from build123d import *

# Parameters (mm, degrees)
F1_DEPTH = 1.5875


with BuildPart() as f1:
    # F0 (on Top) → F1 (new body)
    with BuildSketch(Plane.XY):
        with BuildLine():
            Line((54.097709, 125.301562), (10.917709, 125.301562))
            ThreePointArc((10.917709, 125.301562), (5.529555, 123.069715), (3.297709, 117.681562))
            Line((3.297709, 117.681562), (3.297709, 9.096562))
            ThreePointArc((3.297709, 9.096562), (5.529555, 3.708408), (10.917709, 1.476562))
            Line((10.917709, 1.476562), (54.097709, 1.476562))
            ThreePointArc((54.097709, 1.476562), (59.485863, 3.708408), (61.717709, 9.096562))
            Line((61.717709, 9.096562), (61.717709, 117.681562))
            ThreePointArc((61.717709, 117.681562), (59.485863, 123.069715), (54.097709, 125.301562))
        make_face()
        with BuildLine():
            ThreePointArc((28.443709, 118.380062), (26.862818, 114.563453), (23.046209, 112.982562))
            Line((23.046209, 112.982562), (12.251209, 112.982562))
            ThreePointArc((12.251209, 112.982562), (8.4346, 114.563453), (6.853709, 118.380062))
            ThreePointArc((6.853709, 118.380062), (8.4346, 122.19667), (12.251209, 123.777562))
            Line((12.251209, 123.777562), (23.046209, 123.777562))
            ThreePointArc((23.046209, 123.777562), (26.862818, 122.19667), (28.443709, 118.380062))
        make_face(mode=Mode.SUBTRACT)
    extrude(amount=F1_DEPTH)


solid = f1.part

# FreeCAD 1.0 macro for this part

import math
import FreeCAD as App
import Part
import Sketcher
from FreeCAD import Vector
Q = App.Units.Quantity

doc = App.newDocument("Part")
body = doc.addObject("PartDesign::Body", "Body")

# Sketch on XY plane
sketch1 = doc.addObject("Sketcher::SketchObject", "Sketch")
body.addObject(sketch1)
sketch1.AttachmentSupport = (doc.XY_Plane, [""])
sketch1.MapMode = "FlatFace"
sketch1.addGeometry([
    Part.LineSegment(Vector(54, 125, 0), Vector(11, 125, 0)),  # 0
    Part.ArcOfCircle(Part.Circle(Vector(11, 118, 0), Vector(0, 0, 1), 8), math.radians(90), math.radians(180)),  # 1
    Part.LineSegment(Vector(3, 118, 0), Vector(3, 9, 0)),  # 2
    Part.ArcOfCircle(Part.Circle(Vector(11, 9, 0), Vector(0, 0, 1), 8), math.radians(180), math.radians(270)),  # 3
    Part.LineSegment(Vector(11, 1, 0), Vector(54, 1, 0)),  # 4
    Part.ArcOfCircle(Part.Circle(Vector(54, 9, 0), Vector(0, 0, 1), 8), math.radians(-90), math.radians(0)),  # 5
    Part.LineSegment(Vector(62, 9, 0), Vector(62, 118, 0)),  # 6
    Part.ArcOfCircle(Part.Circle(Vector(54, 118, 0), Vector(0, 0, 1), 8), math.radians(0), math.radians(90)),  # 7
    Part.ArcOfCircle(Part.Circle(Vector(23, 118, 0), Vector(0, 0, 1), 5), math.radians(0), math.radians(90)),  # 8
    Part.ArcOfCircle(Part.Circle(Vector(23, 118, 0), Vector(0, 0, 1), 5), math.radians(-90), math.radians(0)),  # 9
    Part.LineSegment(Vector(23, 113, 0), Vector(12, 113, 0)),  # 10
    Part.ArcOfCircle(Part.Circle(Vector(12, 118, 0), Vector(0, 0, 1), 5), math.radians(180), math.radians(270)),  # 11
    Part.ArcOfCircle(Part.Circle(Vector(12, 118, 0), Vector(0, 0, 1), 5), math.radians(90), math.radians(180)),  # 12
    Part.LineSegment(Vector(12, 124, 0), Vector(23, 124, 0)),  # 13
], False)
sketch1.addConstraint([
    Sketcher.Constraint("Tangent", 0, 2, 1, 1),
    Sketcher.Constraint("Tangent", 1, 2, 2, 1),
    Sketcher.Constraint("Tangent", 2, 2, 3, 1),
    Sketcher.Constraint("Tangent", 3, 2, 4, 1),
    Sketcher.Constraint("Tangent", 4, 2, 5, 1),
    Sketcher.Constraint("Tangent", 5, 2, 6, 1),
    Sketcher.Constraint("Tangent", 6, 2, 7, 1),
    Sketcher.Constraint("Tangent", 7, 2, 0, 1),
    Sketcher.Constraint("Tangent", 8, 1, 9, 2),
    Sketcher.Constraint("Tangent", 9, 1, 10, 1),
    Sketcher.Constraint("Tangent", 10, 2, 11, 2),
    Sketcher.Constraint("Tangent", 11, 1, 12, 2),
    Sketcher.Constraint("Tangent", 12, 1, 13, 1),
    Sketcher.Constraint("Tangent", 13, 2, 8, 2),
    Sketcher.Constraint("Horizontal", 0),
    Sketcher.Constraint("Vertical", 2),
    Sketcher.Constraint("Horizontal", 4),
    Sketcher.Constraint("Vertical", 6),
    Sketcher.Constraint("Horizontal", 10),
    Sketcher.Constraint("Horizontal", 13),
    Sketcher.Constraint("Equal", 1, 3),
    Sketcher.Constraint("Equal", 3, 5),
    Sketcher.Constraint("Equal", 5, 7),
    Sketcher.Constraint("Equal", 8, 9),
    Sketcher.Constraint("Equal", 9, 11),
    Sketcher.Constraint("Horizontal", 12, 3, 8, 1),
    Sketcher.Constraint("Horizontal", 8, 1, 11, 1),
    Sketcher.Constraint("Radius", 1, Q("0.3 in")),
    Sketcher.Constraint("DistanceX", 0, 2, 0, 1, Q("1.7 in")),
    Sketcher.Constraint("Radius", 8, Q("0.2125 in")),
    Sketcher.Constraint("DistanceX", 10, 2, 10, 1, Q("0.425 in")),
    Sketcher.Constraint("DistanceY", 2, 2, 2, 1, Q("4.275 in")),
    Sketcher.Constraint("DistanceX", 1, 3, 8, 1, Q("0.69 in")),
    Sketcher.Constraint("DistanceY", 12, 1, 0, 2, Q("0.06 in")),
    Sketcher.Constraint("DistanceX", -1, 1, 1, 3, Q("10.91771 mm")),
    Sketcher.Constraint("DistanceY", -1, 1, 1, 3, Q("117.681561 mm")),
])
pad1 = doc.addObject("PartDesign::Pad", "Pad")
body.addObject(pad1)
pad1.Profile = sketch1
pad1.Length = Q("0.0625 in")

doc.recompute()
